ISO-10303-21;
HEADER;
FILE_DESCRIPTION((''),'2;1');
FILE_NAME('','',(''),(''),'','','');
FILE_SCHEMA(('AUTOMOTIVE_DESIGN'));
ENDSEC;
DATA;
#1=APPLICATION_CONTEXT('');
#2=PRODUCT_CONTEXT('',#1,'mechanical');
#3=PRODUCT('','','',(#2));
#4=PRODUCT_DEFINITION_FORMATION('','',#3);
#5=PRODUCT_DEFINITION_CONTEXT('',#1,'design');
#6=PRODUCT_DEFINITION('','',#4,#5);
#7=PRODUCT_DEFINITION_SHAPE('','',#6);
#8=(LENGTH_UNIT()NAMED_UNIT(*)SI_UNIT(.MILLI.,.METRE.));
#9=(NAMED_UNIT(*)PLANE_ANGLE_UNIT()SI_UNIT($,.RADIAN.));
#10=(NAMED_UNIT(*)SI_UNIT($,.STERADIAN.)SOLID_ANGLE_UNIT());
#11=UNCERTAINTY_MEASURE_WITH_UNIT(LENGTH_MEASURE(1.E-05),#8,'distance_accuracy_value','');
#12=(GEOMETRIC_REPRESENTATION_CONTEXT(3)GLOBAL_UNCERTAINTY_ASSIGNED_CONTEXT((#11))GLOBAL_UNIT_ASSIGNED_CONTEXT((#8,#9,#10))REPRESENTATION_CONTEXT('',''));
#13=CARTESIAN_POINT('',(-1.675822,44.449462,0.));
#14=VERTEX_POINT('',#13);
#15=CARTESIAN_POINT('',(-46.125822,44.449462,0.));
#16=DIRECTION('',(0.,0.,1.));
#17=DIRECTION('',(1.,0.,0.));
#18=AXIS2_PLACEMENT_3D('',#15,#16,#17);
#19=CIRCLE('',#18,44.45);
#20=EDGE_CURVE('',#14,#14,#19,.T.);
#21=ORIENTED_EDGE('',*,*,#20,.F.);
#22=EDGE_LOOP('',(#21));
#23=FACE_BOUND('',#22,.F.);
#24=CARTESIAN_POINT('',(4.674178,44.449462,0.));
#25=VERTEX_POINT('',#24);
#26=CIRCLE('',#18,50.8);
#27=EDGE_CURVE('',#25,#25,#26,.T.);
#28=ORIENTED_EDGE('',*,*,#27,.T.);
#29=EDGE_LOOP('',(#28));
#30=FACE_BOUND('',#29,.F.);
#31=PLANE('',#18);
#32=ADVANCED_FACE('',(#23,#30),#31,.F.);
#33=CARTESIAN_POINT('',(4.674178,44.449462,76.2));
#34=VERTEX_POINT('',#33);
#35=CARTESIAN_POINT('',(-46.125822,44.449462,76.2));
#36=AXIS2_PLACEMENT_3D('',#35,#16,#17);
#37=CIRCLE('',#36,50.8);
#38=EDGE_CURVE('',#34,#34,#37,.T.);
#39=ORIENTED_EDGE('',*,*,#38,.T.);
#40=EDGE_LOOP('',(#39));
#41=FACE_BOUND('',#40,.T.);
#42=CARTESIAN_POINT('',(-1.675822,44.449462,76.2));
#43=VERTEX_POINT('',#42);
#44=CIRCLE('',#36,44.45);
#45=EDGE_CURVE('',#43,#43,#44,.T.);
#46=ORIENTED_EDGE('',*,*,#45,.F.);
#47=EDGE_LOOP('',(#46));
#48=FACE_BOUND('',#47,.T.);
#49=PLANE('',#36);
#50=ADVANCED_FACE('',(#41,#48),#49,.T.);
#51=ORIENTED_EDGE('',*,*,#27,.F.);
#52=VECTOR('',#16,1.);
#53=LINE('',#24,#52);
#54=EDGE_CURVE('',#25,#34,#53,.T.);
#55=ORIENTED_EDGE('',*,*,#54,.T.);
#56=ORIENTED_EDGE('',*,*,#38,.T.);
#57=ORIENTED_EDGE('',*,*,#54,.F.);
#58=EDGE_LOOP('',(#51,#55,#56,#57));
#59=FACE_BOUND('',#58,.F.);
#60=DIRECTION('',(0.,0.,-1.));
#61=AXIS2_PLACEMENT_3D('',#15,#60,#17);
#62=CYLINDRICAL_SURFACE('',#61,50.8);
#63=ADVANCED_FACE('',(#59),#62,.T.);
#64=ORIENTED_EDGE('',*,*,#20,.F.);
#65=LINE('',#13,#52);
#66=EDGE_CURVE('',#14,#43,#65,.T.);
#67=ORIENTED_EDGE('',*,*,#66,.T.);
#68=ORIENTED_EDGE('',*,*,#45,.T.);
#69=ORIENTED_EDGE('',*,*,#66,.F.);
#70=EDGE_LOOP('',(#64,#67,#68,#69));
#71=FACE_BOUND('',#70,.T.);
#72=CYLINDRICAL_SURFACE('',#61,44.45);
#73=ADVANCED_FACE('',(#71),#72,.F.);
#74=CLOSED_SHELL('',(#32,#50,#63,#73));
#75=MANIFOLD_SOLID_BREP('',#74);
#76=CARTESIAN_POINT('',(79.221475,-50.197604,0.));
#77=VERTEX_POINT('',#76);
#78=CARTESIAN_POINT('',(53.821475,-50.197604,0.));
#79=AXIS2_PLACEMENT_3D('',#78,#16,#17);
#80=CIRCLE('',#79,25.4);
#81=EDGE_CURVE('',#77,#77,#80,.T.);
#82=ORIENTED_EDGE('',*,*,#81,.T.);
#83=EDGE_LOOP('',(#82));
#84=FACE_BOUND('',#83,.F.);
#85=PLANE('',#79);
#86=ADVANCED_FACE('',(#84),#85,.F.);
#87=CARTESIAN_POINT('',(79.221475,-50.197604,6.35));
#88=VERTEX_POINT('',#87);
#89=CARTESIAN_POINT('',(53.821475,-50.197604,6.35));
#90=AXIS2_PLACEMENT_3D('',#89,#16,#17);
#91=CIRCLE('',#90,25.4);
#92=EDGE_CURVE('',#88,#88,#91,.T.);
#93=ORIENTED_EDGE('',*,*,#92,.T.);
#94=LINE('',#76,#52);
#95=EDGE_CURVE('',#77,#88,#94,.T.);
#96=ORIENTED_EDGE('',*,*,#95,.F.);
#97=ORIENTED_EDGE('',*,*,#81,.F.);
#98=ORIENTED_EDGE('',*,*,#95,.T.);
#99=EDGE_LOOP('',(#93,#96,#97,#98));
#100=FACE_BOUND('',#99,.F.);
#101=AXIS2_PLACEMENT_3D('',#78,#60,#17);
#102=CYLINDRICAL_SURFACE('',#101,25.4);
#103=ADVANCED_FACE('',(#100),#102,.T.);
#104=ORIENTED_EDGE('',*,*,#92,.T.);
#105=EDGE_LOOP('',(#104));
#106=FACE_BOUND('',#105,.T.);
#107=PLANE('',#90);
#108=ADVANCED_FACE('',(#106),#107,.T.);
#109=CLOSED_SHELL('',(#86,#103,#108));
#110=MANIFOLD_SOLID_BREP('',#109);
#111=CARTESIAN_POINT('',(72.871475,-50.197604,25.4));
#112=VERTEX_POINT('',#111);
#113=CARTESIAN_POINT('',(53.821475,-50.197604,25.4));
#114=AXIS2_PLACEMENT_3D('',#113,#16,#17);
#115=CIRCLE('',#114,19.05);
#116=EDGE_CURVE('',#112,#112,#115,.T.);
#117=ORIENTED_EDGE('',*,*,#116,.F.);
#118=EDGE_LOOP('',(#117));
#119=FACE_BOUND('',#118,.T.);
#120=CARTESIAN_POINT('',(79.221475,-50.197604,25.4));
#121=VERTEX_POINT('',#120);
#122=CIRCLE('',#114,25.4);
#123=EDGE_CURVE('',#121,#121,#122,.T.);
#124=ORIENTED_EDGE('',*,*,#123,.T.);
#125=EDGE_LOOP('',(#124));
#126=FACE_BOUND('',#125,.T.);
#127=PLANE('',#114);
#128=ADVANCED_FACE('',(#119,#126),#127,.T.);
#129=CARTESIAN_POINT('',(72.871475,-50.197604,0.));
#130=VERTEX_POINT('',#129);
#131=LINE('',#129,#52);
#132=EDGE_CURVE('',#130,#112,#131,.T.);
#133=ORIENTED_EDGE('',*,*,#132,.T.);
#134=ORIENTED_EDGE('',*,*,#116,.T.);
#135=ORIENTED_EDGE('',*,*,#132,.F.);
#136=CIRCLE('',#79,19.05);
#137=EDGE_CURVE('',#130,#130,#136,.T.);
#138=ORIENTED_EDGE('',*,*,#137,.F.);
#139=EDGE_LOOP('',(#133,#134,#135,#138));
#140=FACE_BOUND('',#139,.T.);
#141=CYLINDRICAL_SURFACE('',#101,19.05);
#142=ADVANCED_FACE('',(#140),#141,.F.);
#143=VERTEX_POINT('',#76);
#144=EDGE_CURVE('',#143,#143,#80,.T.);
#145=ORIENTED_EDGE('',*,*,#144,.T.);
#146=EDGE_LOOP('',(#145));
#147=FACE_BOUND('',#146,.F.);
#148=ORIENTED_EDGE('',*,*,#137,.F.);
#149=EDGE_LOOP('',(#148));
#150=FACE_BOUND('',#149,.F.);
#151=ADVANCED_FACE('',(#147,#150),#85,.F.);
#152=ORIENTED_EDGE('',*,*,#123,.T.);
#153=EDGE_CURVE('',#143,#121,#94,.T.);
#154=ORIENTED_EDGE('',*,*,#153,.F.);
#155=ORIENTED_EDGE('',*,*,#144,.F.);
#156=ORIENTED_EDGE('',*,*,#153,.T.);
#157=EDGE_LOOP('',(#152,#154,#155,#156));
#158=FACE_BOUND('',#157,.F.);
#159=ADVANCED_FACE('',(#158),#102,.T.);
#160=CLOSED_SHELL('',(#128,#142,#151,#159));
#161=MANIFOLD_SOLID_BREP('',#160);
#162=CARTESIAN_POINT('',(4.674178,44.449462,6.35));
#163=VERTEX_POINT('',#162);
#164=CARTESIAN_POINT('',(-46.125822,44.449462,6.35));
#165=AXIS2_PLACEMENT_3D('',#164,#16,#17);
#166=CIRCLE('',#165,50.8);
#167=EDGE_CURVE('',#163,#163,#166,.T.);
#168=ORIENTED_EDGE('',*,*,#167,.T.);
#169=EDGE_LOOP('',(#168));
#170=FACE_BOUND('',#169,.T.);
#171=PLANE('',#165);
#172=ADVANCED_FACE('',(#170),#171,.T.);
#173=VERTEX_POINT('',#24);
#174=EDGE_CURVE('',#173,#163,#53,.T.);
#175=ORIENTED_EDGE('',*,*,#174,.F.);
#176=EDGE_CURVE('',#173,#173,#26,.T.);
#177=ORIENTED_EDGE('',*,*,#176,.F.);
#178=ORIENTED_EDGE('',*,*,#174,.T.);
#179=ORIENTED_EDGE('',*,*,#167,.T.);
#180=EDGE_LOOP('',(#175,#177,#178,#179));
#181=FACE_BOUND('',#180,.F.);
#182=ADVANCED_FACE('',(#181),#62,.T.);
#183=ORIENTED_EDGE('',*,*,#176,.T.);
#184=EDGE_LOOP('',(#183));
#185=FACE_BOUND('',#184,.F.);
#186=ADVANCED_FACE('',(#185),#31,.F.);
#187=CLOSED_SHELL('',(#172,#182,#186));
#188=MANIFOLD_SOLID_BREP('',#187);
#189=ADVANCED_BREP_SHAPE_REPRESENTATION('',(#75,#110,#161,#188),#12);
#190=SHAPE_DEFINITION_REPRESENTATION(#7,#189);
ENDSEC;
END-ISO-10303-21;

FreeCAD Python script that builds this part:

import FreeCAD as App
import Part
import Sketcher

V = App.Vector
Q = App.Units.Quantity

doc = App.newDocument("Part")
params = doc.addObject("Spreadsheet::Sheet", "Params")
for row, (alias, value) in enumerate([
    ("sketch1_diameter", "4 in"),
    ("sketch1_diameter2", "2 in"),
    ("pad1_length", "0.25 in"),
    ("sketch2_diameter", "4 in"),
    ("sketch2_diameter2", "3.5 in"),
    ("pad2_length", "3 in"),
    ("sketch3_diameter", "2 in"),
    ("sketch3_diameter2", "1.5 in"),
    ("pad3_length", "1 in"),
], start=1):
    params.set(f"A{row}", alias)
    params.set(f"B{row}", "=" + value)
    params.setAlias(f"B{row}", alias)

body = doc.addObject("PartDesign::Body", "Body")
body.AllowCompound = True

# Sketch on XY plane
sketch1 = doc.addObject("Sketcher::SketchObject", "Sketch")
body.addObject(sketch1)
sketch1.AttachmentSupport = (doc.XY_Plane, [""])
sketch1.MapMode = "FlatFace"
sketch1.addGeometry(Part.Circle(V(-46, 44, 0), V(0, 0, 1), 51), False)
sketch1.addGeometry(Part.Circle(V(54, -50, 0), V(0, 0, 1), 25), False)
sketch1.addConstraint(Sketcher.Constraint("Diameter", 0, Q("4 in")))
sketch1.addConstraint(Sketcher.Constraint("Diameter", 1, Q("2 in")))
sketch1.addConstraint(Sketcher.Constraint("DistanceY", -1, 1, 0, 3, 44.449462))
sketch1.addConstraint(Sketcher.Constraint("DistanceX", 0, 3, -1, 1, 46.125822))
sketch1.addConstraint(Sketcher.Constraint("DistanceX", -1, 1, 1, 3, 53.821475))
sketch1.addConstraint(Sketcher.Constraint("DistanceY", 1, 3, -1, 1, 50.197604))
sketch1.setExpression("Constraints[0]", "Params.sketch1_diameter")
sketch1.setExpression("Constraints[1]", "Params.sketch1_diameter2")
pad1 = doc.addObject("PartDesign::Pad", "Pad")
body.addObject(pad1)
pad1.Profile = sketch1
pad1.setExpression("Length", "Params.pad1_length")
body2 = doc.addObject("PartDesign::Body", "Body001")

# Sketch on XY plane
sketch2 = doc.addObject("Sketcher::SketchObject", "Sketch001")
body2.addObject(sketch2)
sketch2.AttachmentSupport = (doc.getObject("XY_Plane001"), [""])
sketch2.MapMode = "FlatFace"
sketch2.addGeometry(Part.Circle(V(-46, 44, 0), V(0, 0, 1), 51), False)
sketch2.addGeometry(Part.Circle(V(-46, 44, 0), V(0, 0, 1), 44), False)
sketch2.addConstraint(Sketcher.Constraint("Coincident", 1, 3, 0, 3))
sketch2.addConstraint(Sketcher.Constraint("Diameter", 0, Q("4 in")))
sketch2.addConstraint(Sketcher.Constraint("Diameter", 1, Q("3.5 in")))
sketch2.addConstraint(Sketcher.Constraint("DistanceY", -1, 1, 0, 3, 44.449462))
sketch2.addConstraint(Sketcher.Constraint("DistanceX", 0, 3, -1, 1, 46.125822))
sketch2.setExpression("Constraints[1]", "Params.sketch2_diameter")
sketch2.setExpression("Constraints[2]", "Params.sketch2_diameter2")
pad2 = doc.addObject("PartDesign::Pad", "Pad001")
body2.addObject(pad2)
pad2.Profile = sketch2
pad2.setExpression("Length", "Params.pad2_length")
body3 = doc.addObject("PartDesign::Body", "Body002")

# Sketch on XY plane
sketch3 = doc.addObject("Sketcher::SketchObject", "Sketch002")
body3.addObject(sketch3)
sketch3.AttachmentSupport = (doc.getObject("XY_Plane002"), [""])
sketch3.MapMode = "FlatFace"
sketch3.addGeometry(Part.Circle(V(54, -50, 0), V(0, 0, 1), 25), False)
sketch3.addGeometry(Part.Circle(V(54, -50, 0), V(0, 0, 1), 19), False)
sketch3.addConstraint(Sketcher.Constraint("Coincident", 1, 3, 0, 3))
sketch3.addConstraint(Sketcher.Constraint("Diameter", 0, Q("2 in")))
sketch3.addConstraint(Sketcher.Constraint("Diameter", 1, Q("1.5 in")))
sketch3.addConstraint(Sketcher.Constraint("DistanceX", -1, 1, 0, 3, 53.821475))
sketch3.addConstraint(Sketcher.Constraint("DistanceY", 0, 3, -1, 1, 50.197604))
sketch3.setExpression("Constraints[1]", "Params.sketch3_diameter")
sketch3.setExpression("Constraints[2]", "Params.sketch3_diameter2")
pad3 = doc.addObject("PartDesign::Pad", "Pad002")
body3.addObject(pad3)
pad3.Profile = sketch3
pad3.setExpression("Length", "Params.pad3_length")

doc.recompute()
